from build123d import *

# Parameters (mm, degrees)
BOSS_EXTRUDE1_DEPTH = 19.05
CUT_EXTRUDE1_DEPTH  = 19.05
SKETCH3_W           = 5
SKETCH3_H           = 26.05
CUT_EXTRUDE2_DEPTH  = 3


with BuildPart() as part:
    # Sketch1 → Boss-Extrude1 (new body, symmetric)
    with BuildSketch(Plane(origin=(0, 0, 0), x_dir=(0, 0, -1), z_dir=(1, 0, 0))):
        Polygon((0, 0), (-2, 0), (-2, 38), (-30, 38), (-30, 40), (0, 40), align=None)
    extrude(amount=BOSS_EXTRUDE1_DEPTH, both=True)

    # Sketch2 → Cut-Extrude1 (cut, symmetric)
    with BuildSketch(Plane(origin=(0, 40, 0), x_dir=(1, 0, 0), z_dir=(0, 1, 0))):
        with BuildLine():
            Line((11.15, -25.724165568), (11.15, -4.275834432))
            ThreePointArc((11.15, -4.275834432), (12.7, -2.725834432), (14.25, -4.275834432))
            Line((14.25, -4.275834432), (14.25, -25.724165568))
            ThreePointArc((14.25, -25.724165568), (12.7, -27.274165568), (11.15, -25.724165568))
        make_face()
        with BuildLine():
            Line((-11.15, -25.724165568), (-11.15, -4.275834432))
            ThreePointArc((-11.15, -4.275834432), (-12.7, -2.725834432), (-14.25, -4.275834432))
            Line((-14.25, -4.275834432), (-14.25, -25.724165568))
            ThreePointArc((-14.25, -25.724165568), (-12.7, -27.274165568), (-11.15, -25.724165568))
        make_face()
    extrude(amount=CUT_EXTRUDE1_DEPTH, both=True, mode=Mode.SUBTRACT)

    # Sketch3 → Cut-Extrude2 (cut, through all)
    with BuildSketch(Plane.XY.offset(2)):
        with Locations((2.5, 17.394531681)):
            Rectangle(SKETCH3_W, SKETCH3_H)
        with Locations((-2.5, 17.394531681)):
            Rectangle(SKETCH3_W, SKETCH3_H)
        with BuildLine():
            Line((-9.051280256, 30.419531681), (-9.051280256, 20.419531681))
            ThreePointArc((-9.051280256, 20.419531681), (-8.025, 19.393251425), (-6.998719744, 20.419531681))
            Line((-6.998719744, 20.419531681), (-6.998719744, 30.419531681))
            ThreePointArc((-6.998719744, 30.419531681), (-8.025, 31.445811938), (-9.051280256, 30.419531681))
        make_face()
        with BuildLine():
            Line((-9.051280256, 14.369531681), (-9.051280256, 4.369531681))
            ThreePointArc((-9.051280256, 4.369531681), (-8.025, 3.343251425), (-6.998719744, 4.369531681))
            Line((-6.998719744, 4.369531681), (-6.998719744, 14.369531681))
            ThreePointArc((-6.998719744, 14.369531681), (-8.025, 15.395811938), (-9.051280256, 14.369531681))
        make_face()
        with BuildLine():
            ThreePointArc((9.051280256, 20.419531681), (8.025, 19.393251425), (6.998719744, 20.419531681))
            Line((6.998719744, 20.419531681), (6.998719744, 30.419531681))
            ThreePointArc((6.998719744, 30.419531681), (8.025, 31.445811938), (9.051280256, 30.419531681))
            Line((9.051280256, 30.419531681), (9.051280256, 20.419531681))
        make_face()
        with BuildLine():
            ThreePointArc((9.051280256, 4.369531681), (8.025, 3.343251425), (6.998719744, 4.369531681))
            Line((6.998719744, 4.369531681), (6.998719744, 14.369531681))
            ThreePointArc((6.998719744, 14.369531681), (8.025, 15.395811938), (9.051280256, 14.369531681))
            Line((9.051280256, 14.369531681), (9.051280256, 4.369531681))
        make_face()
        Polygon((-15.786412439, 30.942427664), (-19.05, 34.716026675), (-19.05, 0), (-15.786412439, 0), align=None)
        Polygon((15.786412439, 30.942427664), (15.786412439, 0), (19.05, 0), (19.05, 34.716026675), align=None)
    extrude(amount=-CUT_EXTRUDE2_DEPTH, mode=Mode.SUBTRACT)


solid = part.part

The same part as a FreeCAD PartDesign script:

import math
import FreeCAD as App
import Part
import Sketcher

V = App.Vector
Q = App.Units.Quantity


def add_polygon(sketch, points):
    """Adds a closed chain of lines whose ends are joined by coincident constraints."""
    first, n = sketch.GeometryCount, len(points)
    for a, b in zip(points, points[1:] + points[:1]):
        sketch.addGeometry(Part.LineSegment(App.Vector(*a, 0), App.Vector(*b, 0)), False)
    for i in range(n):
        sketch.addConstraint(Sketcher.Constraint("Coincident", first + i, 2, first + (i + 1) % n, 1))

doc = App.newDocument("Part")
body = doc.addObject("PartDesign::Body", "Body")

# Sketch on YZ plane
sketch1 = body.newObject("Sketcher::SketchObject", "Sketch")
sketch1.AttachmentSupport = (doc.getObject("YZ_Plane"), [""])
sketch1.MapMode = "FlatFace"
add_polygon(sketch1, [(0, 2), (0, 0), (40, 0), (40, 30), (38, 30), (38, 2)])  # lines 0-5
sketch1.addConstraint([
    Sketcher.Constraint("Vertical", 0),
    Sketcher.Constraint("Horizontal", 1),
    Sketcher.Constraint("Vertical", 2),
    Sketcher.Constraint("Horizontal", 3),
    Sketcher.Constraint("Vertical", 4),
    Sketcher.Constraint("Horizontal", 5),
    Sketcher.Constraint("Coincident", 0, 2, -1, 1),
    Sketcher.Constraint("Equal", 3, 0),
    Sketcher.Constraint("DistanceX", 1, 1, 1, 2, Q("40 mm")),
    Sketcher.Constraint("DistanceX", 3, 2, 3, 1, Q("2 mm")),
    Sketcher.Constraint("DistanceY", 2, 1, 2, 2, Q("30 mm")),
])
pad1 = body.newObject("PartDesign::Pad", "Pad")
pad1.Profile = sketch1
pad1.Length = 38.1
pad1.Midplane = True

# Sketch on XZ plane
sketch2 = body.newObject("Sketcher::SketchObject", "Sketch001")
sketch2.AttachmentSupport = (doc.getObject("XZ_Plane"), [""])
sketch2.MapMode = "FlatFace"
sketch2.AttachmentOffset = App.Placement(V(0, 0, -40), App.Rotation())
sketch2.addGeometry([
    Part.LineSegment(V(11.2, 4.3, 0), V(11.2, 25.7, 0)),  # 0
    Part.ArcOfCircle(Part.Circle(V(12.7, 25.7, 0), V(0, 0, 1), 1.6), math.radians(0), math.radians(180)),  # 1
    Part.LineSegment(V(14.2, 25.7, 0), V(14.2, 4.3, 0)),  # 2
    Part.ArcOfCircle(Part.Circle(V(12.7, 4.3, 0), V(0, 0, 1), 1.6), math.radians(180), math.radians(360)),  # 3
    Part.LineSegment(V(-11.2, 25.7, 0), V(-11.2, 4.3, 0)),  # 4
    Part.ArcOfCircle(Part.Circle(V(-12.7, 4.3, 0), V(0, 0, 1), 1.6), math.radians(180), math.radians(360)),  # 5
    Part.LineSegment(V(-14.2, 4.3, 0), V(-14.2, 25.7, 0)),  # 6
    Part.ArcOfCircle(Part.Circle(V(-12.7, 25.7, 0), V(0, 0, 1), 1.6), math.radians(0), math.radians(180)),  # 7
], False)
sketch2.addConstraint([
    Sketcher.Constraint("Tangent", 0, 2, 1, 2),
    Sketcher.Constraint("Tangent", 1, 1, 2, 1),
    Sketcher.Constraint("Tangent", 2, 2, 3, 2),
    Sketcher.Constraint("Tangent", 3, 1, 0, 1),
    Sketcher.Constraint("Tangent", 4, 2, 5, 2),
    Sketcher.Constraint("Tangent", 5, 1, 6, 1),
    Sketcher.Constraint("Tangent", 6, 2, 7, 2),
    Sketcher.Constraint("Tangent", 7, 1, 4, 1),
    Sketcher.Constraint("Vertical", 0),
    Sketcher.Constraint("Vertical", 2),
    Sketcher.Constraint("Vertical", 4),
    Sketcher.Constraint("Vertical", 6),
    Sketcher.Constraint("Equal", 3, 5),
    Sketcher.Constraint("Symmetric", 3, 3, 5, 3, -2),
    Sketcher.Constraint("Horizontal", 1, 3, 7, 3),
    Sketcher.Constraint("Radius", 1, Q("1.55 mm")),
    Sketcher.Constraint("DistanceX", -1, 1, 1, 3, Q("12.7 mm")),
    Sketcher.Constraint("DistanceY", 0, 1, 0, 2, Q("21.448331 mm")),
    Sketcher.Constraint("DistanceY", -1, 1, 1, 3, Q("25.724166 mm")),
])
pocket1 = body.newObject("PartDesign::Pocket", "Pocket")
pocket1.Profile = sketch2
pocket1.Length = 38.1
pocket1.Midplane = True

# Sketch on XY plane
sketch3 = body.newObject("Sketcher::SketchObject", "Sketch002")
sketch3.AttachmentSupport = (doc.getObject("XY_Plane"), [""])
sketch3.MapMode = "FlatFace"
sketch3.AttachmentOffset = App.Placement(V(0, 0, 2), App.Rotation())
add_polygon(sketch3, [(5, 4.4), (5, 30.4), (-5, 30.4), (-5, 4.4)])  # lines 0-3
sketch3.addGeometry(Part.LineSegment(V(-9.1, 30.4, 0), V(-9.1, 20.4, 0)), False)  # 4
sketch3.addGeometry(Part.ArcOfCircle(Part.Circle(V(-8, 20.4, 0), V(0, 0, 1), 1), math.radians(180), math.radians(360)), False)  # 5
sketch3.addGeometry(Part.LineSegment(V(-7, 20.4, 0), V(-7, 30.4, 0)), False)  # 6
sketch3.addGeometry(Part.ArcOfCircle(Part.Circle(V(-8, 30.4, 0), V(0, 0, 1), 1), math.radians(0), math.radians(180)), False)  # 7
sketch3.addGeometry(Part.LineSegment(V(-9.1, 14.4, 0), V(-9.1, 4.4, 0)), False)  # 8
sketch3.addGeometry(Part.ArcOfCircle(Part.Circle(V(-8, 4.4, 0), V(0, 0, 1), 1), math.radians(180), math.radians(360)), False)  # 9
sketch3.addGeometry(Part.LineSegment(V(-7, 4.4, 0), V(-7, 14.4, 0)), False)  # 10
sketch3.addGeometry(Part.ArcOfCircle(Part.Circle(V(-8, 14.4, 0), V(0, 0, 1), 1), math.radians(0), math.radians(180)), False)  # 11
sketch3.addGeometry(Part.ArcOfCircle(Part.Circle(V(8, 20.4, 0), V(0, 0, 1), 1), math.radians(180), math.radians(360)), False)  # 12
sketch3.addGeometry(Part.LineSegment(V(9.1, 20.4, 0), V(9.1, 30.4, 0)), False)  # 13
sketch3.addGeometry(Part.ArcOfCircle(Part.Circle(V(8, 30.4, 0), V(0, 0, 1), 1), math.radians(0), math.radians(180)), False)  # 14
sketch3.addGeometry(Part.LineSegment(V(7, 30.4, 0), V(7, 20.4, 0)), False)  # 15
sketch3.addGeometry(Part.ArcOfCircle(Part.Circle(V(8, 4.4, 0), V(0, 0, 1), 1), math.radians(180), math.radians(360)), False)  # 16
sketch3.addGeometry(Part.LineSegment(V(9.1, 4.4, 0), V(9.1, 14.4, 0)), False)  # 17
sketch3.addGeometry(Part.ArcOfCircle(Part.Circle(V(8, 14.4, 0), V(0, 0, 1), 1), math.radians(0), math.radians(180)), False)  # 18
sketch3.addGeometry(Part.LineSegment(V(7, 14.4, 0), V(7, 4.4, 0)), False)  # 19
add_polygon(sketch3, [(-15.8, 30.9), (-19.1, 34.7), (-19.1, 0), (-15.8, 0)])  # lines 20-23
add_polygon(sketch3, [(15.8, 30.9), (15.8, 0), (19.1, 0), (19.1, 34.7)])  # lines 24-27
sketch3.addConstraint([
    Sketcher.Constraint("Tangent", 4, 2, 5, 1),
    Sketcher.Constraint("Tangent", 5, 2, 6, 1),
    Sketcher.Constraint("Tangent", 6, 2, 7, 1),
    Sketcher.Constraint("Tangent", 7, 2, 4, 1),
    Sketcher.Constraint("Tangent", 8, 2, 9, 1),
    Sketcher.Constraint("Tangent", 9, 2, 10, 1),
    Sketcher.Constraint("Tangent", 10, 2, 11, 1),
    Sketcher.Constraint("Tangent", 11, 2, 8, 1),
    Sketcher.Constraint("Tangent", 12, 2, 13, 1),
    Sketcher.Constraint("Tangent", 13, 2, 14, 1),
    Sketcher.Constraint("Tangent", 14, 2, 15, 1),
    Sketcher.Constraint("Tangent", 15, 2, 12, 1),
    Sketcher.Constraint("Tangent", 16, 2, 17, 1),
    Sketcher.Constraint("Tangent", 17, 2, 18, 1),
    Sketcher.Constraint("Tangent", 18, 2, 19, 1),
    Sketcher.Constraint("Tangent", 19, 2, 16, 1),
    Sketcher.Constraint("Vertical", 0),
    Sketcher.Constraint("Horizontal", 1),
    Sketcher.Constraint("Vertical", 2),
    Sketcher.Constraint("Horizontal", 3),
    Sketcher.Constraint("Vertical", 4),
    Sketcher.Constraint("Vertical", 6),
    Sketcher.Constraint("Vertical", 8),
    Sketcher.Constraint("Vertical", 10),
    Sketcher.Constraint("Vertical", 13),
    Sketcher.Constraint("Vertical", 15),
    Sketcher.Constraint("Vertical", 17),
    Sketcher.Constraint("Vertical", 19),
    Sketcher.Constraint("Vertical", 21),
    Sketcher.Constraint("Horizontal", 22),
    Sketcher.Constraint("Vertical", 23),
    Sketcher.Constraint("Vertical", 24),
    Sketcher.Constraint("Horizontal", 25),
    Sketcher.Constraint("Vertical", 26),
    Sketcher.Constraint("Equal", 7, 9),
    Sketcher.Constraint("Equal", 11, 12),
    Sketcher.Constraint("Equal", 14, 16),
    Sketcher.Constraint("Symmetric", 22, 2, 24, 2, -1, 1),
    Sketcher.Constraint("Symmetric", 5, 3, 12, 3, -2),
    Sketcher.Constraint("Symmetric", 9, 3, 16, 3, -2),
    Sketcher.Constraint("Symmetric", 21, 2, 25, 2, -2),
    Sketcher.Constraint("Horizontal", 7, 3, 14, 3),
    Sketcher.Constraint("Horizontal", 11, 3, 18, 3),
    Sketcher.Constraint("Horizontal", 14, 3, 0, 2),
    Sketcher.Constraint("Horizontal", 16, 3, 2, 2),
    Sketcher.Constraint("Horizontal", 20, 2, 26, 2),
    Sketcher.Constraint("Horizontal", 23, 2, 27, 2),
    Sketcher.Constraint("Vertical", 7, 3, 9, 3),
    Sketcher.Constraint("Equal", 3, 4),
    Sketcher.Constraint("Equal", 6, 8),
    Sketcher.Constraint("DistanceX", 1, 2, 1, 1, Q("10 mm")),
    Sketcher.Constraint("DistanceX", -1, 1, 0, 2, Q("5 mm")),
    Sketcher.Constraint("DistanceY", 0, 1, 0, 2, Q("26.05 mm")),
    Sketcher.Constraint("DistanceX", 20, 2, -1, 1, Q("19.05 mm")),
    Sketcher.Constraint("Radius", 5, Q("1.02628 mm")),
    Sketcher.Constraint("DistanceX", 5, 3, 12, 3, Q("16.05 mm")),
    Sketcher.Constraint("DistanceY", 23, 2, 20, 2, Q("3.773599 mm")),
    Sketcher.Constraint("DistanceX", 22, 1, 22, 2, Q("3.263588 mm")),
    Sketcher.Constraint("DistanceY", 21, 2, 21, 1, Q("34.716027 mm")),
    Sketcher.Constraint("DistanceY", -1, 1, 5, 3, Q("20.419532 mm")),
])
pocket2 = body.newObject("PartDesign::Pocket", "Pocket001")
pocket2.Profile = sketch3
pocket2.Type = "ThroughAll"

doc.recompute()
